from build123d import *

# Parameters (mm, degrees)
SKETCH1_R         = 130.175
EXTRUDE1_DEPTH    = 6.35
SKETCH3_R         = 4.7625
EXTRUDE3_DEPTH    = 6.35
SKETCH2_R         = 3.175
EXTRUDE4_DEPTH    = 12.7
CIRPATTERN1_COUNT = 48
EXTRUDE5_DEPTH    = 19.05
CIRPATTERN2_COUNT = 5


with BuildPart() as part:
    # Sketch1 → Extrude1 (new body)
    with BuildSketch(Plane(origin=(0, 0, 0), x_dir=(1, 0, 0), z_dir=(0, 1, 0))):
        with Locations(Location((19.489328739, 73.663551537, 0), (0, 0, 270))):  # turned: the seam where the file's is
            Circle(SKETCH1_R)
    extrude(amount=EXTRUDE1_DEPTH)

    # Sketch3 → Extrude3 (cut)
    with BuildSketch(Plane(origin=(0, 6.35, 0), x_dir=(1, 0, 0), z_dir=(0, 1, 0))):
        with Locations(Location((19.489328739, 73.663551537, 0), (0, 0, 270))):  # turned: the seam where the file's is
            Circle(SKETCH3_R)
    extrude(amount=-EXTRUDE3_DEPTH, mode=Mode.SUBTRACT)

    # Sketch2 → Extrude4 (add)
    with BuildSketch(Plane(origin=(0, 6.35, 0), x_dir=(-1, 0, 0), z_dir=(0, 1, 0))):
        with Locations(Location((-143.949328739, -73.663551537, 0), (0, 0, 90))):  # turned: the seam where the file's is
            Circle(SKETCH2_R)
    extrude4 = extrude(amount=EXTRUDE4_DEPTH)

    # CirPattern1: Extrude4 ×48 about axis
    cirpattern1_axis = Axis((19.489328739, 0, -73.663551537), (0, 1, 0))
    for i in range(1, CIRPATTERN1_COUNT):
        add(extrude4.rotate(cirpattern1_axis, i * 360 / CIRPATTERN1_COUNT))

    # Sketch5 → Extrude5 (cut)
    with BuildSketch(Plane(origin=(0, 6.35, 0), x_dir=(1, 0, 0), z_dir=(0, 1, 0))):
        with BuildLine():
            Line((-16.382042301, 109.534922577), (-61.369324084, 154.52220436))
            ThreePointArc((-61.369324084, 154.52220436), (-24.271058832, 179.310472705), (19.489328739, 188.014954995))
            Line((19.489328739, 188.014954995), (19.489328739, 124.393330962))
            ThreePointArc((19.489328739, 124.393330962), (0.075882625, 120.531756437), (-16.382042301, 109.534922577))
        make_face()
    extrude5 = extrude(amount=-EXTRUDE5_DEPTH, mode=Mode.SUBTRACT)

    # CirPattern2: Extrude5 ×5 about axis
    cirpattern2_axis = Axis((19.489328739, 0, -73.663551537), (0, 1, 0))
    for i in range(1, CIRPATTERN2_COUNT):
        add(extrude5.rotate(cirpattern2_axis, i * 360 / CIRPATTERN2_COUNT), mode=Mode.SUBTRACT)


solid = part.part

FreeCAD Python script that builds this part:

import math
import FreeCAD as App
import Part
import Sketcher
from FreeCAD import Vector
Q = App.Units.Quantity

doc = App.newDocument("Part")
body = doc.addObject("PartDesign::Body", "Body")

sketch1 = body.newObject("Sketcher::SketchObject", "Sketch")
sketch1.AttachmentSupport = (doc.getObject("XZ_Plane"), [""])
sketch1.MapMode = "FlatFace"
sketch1.addGeometry(Part.Circle(Vector(19, -74, 0), Vector(0, 0, 1), 130), False)
sketch1.addConstraint(Sketcher.Constraint("Diameter", 0, Q("10.25 in")))
sketch1.addConstraint(Sketcher.Constraint("DistanceX", -1, 1, 0, 3, Q("19.489329 mm")))
sketch1.addConstraint(Sketcher.Constraint("DistanceY", 0, 3, -1, 1, Q("73.663552 mm")))
pad1 = body.newObject("PartDesign::Pad", "Pad")
pad1.Profile = sketch1
pad1.Length = Q("0.25 in")
pad1.Reversed = True

sketch2 = body.newObject("Sketcher::SketchObject", "Sketch001")
sketch2.AttachmentSupport = (doc.getObject("XZ_Plane"), [""])
sketch2.MapMode = "FlatFace"
sketch2.AttachmentOffset = App.Placement(Vector(0, 0, -0.25 * 25.4), App.Rotation())
sketch2.addGeometry(Part.Circle(Vector(19.5, -73.7, 0), Vector(0, 0, 1), 4.8), False)
sketch2.addConstraint(Sketcher.Constraint("Diameter", 0, Q("0.375 in")))
sketch2.addConstraint(Sketcher.Constraint("DistanceX", -1, 1, 0, 3, Q("19.489329 mm")))
sketch2.addConstraint(Sketcher.Constraint("DistanceY", 0, 3, -1, 1, Q("73.663552 mm")))
pocket1 = body.newObject("PartDesign::Pocket", "Pocket")
pocket1.Profile = sketch2
pocket1.Length = Q("0.25 in")
pocket1.Reversed = True

sketch3 = body.newObject("Sketcher::SketchObject", "Sketch002")
sketch3.AttachmentSupport = (doc.getObject("XZ_Plane"), [""])
sketch3.MapMode = "FlatFace"
sketch3.AttachmentOffset = App.Placement(Vector(0, 0, -0.25 * 25.4), App.Rotation())
sketch3.addGeometry(Part.Circle(Vector(143.9, -73.7, 0), Vector(0, 0, 1), 3.2), False)
sketch3.addConstraint(Sketcher.Constraint("Diameter", 0, Q("0.25 in")))
sketch3.addConstraint(Sketcher.Constraint("DistanceX", -1, 1, 0, 3, Q("143.949329 mm")))
sketch3.addConstraint(Sketcher.Constraint("DistanceY", 0, 3, -1, 1, Q("73.663552 mm")))
pad2 = body.newObject("PartDesign::Pad", "Pad001")
pad2.Profile = sketch3
pad2.Length = Q("0.5 in")
pad2.Reversed = True
doc.recompute()

datumline = body.newObject("PartDesign::Line", "DatumLine")
datumline.Placement = App.Placement(Vector(19.489329, 0, -73.663552), App.Rotation(Vector(0, 0, 1), Vector(0, 1, 0)))
polarpattern = body.newObject("PartDesign::PolarPattern", "PolarPattern")
polarpattern.Originals = [pad2]
polarpattern.Axis = (datumline, [""])
polarpattern.Angle = 360
polarpattern.Occurrences = 48
body.Tip = polarpattern

sketch4 = body.newObject("Sketcher::SketchObject", "Sketch003")
sketch4.AttachmentSupport = (doc.getObject("XZ_Plane"), [""])
sketch4.MapMode = "FlatFace"
sketch4.AttachmentOffset = App.Placement(Vector(0, 0, -0.25 * 25.4), App.Rotation())
sketch4.addGeometry(Part.LineSegment(Vector(-61, -155, 0), Vector(-16, -110, 0)), False)
sketch4.addGeometry(Part.ArcOfCircle(Part.Circle(Vector(19, -74, 0), Vector(0, 0, 1), 51), math.radians(-135), math.radians(-90)), False)
sketch4.addGeometry(Part.LineSegment(Vector(19, -124, 0), Vector(19, -188, 0)), False)
sketch4.addGeometry(Part.ArcOfCircle(Part.Circle(Vector(19, -74, 0), Vector(0, 0, 1), 114), math.radians(-135), math.radians(-90)), False)
sketch4.addConstraint(Sketcher.Constraint("Coincident", 0, 2, 1, 1))
sketch4.addConstraint(Sketcher.Constraint("Coincident", 1, 2, 2, 1))
sketch4.addConstraint(Sketcher.Constraint("Coincident", 2, 2, 3, 2))
sketch4.addConstraint(Sketcher.Constraint("Coincident", 3, 1, 0, 1))
sketch4.addConstraint(Sketcher.Constraint("Vertical", 2))
sketch4.addConstraint(Sketcher.Constraint("Coincident", 3, 3, 1, 3))
sketch4.addConstraint(Sketcher.Constraint("Vertical", 3, 3, 1, 2))
sketch4.addConstraint(Sketcher.Constraint("Angle", 0, Q("45 deg")))
sketch4.addConstraint(Sketcher.Constraint("Radius", 1, Q("50.729779 mm")))
sketch4.addConstraint(Sketcher.Constraint("Radius", 3, Q("114.351403 mm")))
sketch4.addConstraint(Sketcher.Constraint("DistanceX", -1, 1, 1, 3, Q("19.489329 mm")))
sketch4.addConstraint(Sketcher.Constraint("DistanceY", 1, 3, -1, 1, Q("73.663552 mm")))
sketch4.addConstraint(Sketcher.Constraint("DistanceX", 0, 2, 1, 3, Q("35.871371 mm")))
pocket2 = body.newObject("PartDesign::Pocket", "Pocket001")
pocket2.Profile = sketch4
pocket2.Length = Q("0.75 in")
pocket2.Reversed = True
doc.recompute()

datumline2 = body.newObject("PartDesign::Line", "DatumLine001")
datumline2.Placement = App.Placement(Vector(19.489329, 0, -73.663552), App.Rotation(Vector(0, 0, 1), Vector(0, 1, 0)))
polarpattern2 = body.newObject("PartDesign::PolarPattern", "PolarPattern001")
polarpattern2.Originals = [pocket2]
polarpattern2.Axis = (datumline2, [""])
polarpattern2.Angle = 360
polarpattern2.Occurrences = 5
body.Tip = polarpattern2

doc.recompute()
